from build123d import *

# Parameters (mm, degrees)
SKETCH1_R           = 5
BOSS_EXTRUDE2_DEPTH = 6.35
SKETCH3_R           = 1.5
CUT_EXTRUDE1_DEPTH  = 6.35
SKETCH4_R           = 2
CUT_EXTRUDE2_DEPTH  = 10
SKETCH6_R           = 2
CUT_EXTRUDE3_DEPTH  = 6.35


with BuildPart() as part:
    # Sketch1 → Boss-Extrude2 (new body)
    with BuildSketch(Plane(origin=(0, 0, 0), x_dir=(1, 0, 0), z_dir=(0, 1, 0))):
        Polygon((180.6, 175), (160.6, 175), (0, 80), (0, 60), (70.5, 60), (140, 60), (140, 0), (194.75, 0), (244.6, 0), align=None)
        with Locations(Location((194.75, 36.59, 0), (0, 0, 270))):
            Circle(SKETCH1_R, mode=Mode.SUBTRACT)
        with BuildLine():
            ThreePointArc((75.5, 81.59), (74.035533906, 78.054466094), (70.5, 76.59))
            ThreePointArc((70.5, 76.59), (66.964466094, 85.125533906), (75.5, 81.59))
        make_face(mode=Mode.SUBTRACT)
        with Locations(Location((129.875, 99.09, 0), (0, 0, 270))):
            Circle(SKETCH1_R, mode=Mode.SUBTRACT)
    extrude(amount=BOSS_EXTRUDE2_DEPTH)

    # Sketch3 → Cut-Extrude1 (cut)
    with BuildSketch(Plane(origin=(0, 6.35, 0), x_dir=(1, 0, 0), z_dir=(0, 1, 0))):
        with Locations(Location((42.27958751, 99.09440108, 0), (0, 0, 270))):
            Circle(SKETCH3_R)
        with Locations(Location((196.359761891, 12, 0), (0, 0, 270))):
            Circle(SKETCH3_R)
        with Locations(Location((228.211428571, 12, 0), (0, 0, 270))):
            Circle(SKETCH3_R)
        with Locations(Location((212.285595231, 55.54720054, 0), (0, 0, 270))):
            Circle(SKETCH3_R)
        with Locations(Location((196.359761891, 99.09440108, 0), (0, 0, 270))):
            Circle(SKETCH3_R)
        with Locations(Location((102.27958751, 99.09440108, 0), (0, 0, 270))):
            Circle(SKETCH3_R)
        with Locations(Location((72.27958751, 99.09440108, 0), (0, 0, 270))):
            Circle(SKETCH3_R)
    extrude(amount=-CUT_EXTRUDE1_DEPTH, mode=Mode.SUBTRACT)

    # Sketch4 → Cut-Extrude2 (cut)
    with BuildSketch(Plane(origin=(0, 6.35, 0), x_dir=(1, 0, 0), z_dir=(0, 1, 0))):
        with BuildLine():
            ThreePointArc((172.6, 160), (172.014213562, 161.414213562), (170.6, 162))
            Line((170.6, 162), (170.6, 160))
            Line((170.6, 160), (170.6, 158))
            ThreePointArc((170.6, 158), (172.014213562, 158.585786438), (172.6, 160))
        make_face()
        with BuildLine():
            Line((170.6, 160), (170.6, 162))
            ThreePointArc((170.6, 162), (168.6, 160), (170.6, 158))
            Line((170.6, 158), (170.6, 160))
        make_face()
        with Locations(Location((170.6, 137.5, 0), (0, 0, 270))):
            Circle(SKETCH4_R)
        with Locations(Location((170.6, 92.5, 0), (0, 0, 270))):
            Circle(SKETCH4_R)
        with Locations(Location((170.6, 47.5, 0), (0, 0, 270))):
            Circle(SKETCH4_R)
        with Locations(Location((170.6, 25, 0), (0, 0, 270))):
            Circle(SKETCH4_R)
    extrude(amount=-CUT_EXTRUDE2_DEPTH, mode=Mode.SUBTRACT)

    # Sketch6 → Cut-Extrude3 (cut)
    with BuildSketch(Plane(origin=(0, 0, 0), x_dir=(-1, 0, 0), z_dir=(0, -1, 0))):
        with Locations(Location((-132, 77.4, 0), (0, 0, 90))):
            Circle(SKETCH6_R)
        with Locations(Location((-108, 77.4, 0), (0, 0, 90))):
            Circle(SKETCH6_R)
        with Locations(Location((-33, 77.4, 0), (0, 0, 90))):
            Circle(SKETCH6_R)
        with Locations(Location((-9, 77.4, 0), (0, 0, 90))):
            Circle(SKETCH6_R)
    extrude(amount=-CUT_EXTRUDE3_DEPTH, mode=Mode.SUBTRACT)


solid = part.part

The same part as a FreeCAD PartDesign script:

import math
import FreeCAD as App
import Part
import Sketcher
from FreeCAD import Vector

doc = App.newDocument("Part")
body = doc.addObject("PartDesign::Body", "Body")

sketch1 = body.newObject("Sketcher::SketchObject", "Sketch")
sketch1.AttachmentSupport = (doc.getObject("XZ_Plane"), [""])
sketch1.MapMode = "FlatFace"
sketch1.addGeometry([
    Part.LineSegment(Vector(181, -175, 0), Vector(161, -175, 0)),
    Part.LineSegment(Vector(161, -175, 0), Vector(0, -80, 0)),
    Part.LineSegment(Vector(0, -80, 0), Vector(0, -60, 0)),
    Part.LineSegment(Vector(0, -60, 0), Vector(140, -60, 0)),
    Part.LineSegment(Vector(140, -60, 0), Vector(140, 0, 0)),
    Part.LineSegment(Vector(140, 0, 0), Vector(245, 0, 0)),
    Part.LineSegment(Vector(245, 0, 0), Vector(181, -175, 0)),
    Part.Circle(Vector(195, -37, 0), Vector(0, 0, 1), 5),
    Part.ArcOfCircle(Part.Circle(Vector(70, -82, 0), Vector(0, 0, 1), 5), math.radians(90), math.radians(360)),
    Part.ArcOfCircle(Part.Circle(Vector(70, -82, 0), Vector(0, 0, 1), 5), math.radians(0), math.radians(90)),
    Part.Circle(Vector(130, -99, 0), Vector(0, 0, 1), 5),
], False)
sketch1.addConstraint([
    Sketcher.Constraint("Coincident", 0, 2, 1, 1),
    Sketcher.Constraint("Coincident", 1, 2, 2, 1),
    Sketcher.Constraint("Coincident", 2, 2, 3, 1),
    Sketcher.Constraint("Coincident", 3, 2, 4, 1),
    Sketcher.Constraint("Coincident", 4, 2, 5, 1),
    Sketcher.Constraint("Coincident", 5, 2, 6, 1),
    Sketcher.Constraint("Coincident", 6, 2, 0, 1),
    Sketcher.Constraint("Tangent", 8, 1, 9, 2),
    Sketcher.Constraint("Coincident", 9, 1, 8, 2),
    Sketcher.Constraint("Horizontal", 0),
    Sketcher.Constraint("Vertical", 2),
    Sketcher.Constraint("Horizontal", 3),
    Sketcher.Constraint("Vertical", 4),
    Sketcher.Constraint("Horizontal", 5),
    Sketcher.Constraint("Equal", 7, 8),
    Sketcher.Constraint("Equal", 9, 10),
    Sketcher.Constraint("PointOnObject", 1, 2, -2),
    Sketcher.Constraint("PointOnObject", 4, 2, -1),
    Sketcher.Constraint("Horizontal", 8, 3, 9, 1),
    Sketcher.Constraint("Vertical", 9, 3, 8, 1),
    Sketcher.Constraint("Equal", 0, 2),
    Sketcher.Constraint("Diameter", 7, 10.0),
    Sketcher.Constraint("DistanceX", 0, 2, 0, 1, 20.0),
    Sketcher.Constraint("DistanceX", 3, 1, 3, 2, 140.0),
    Sketcher.Constraint("DistanceY", 4, 1, 4, 2, 60.0),
    Sketcher.Constraint("DistanceX", 5, 1, 5, 2, 104.6),
    Sketcher.Constraint("DistanceY", 0, 2, -1, 1, 175.0),
    Sketcher.Constraint("DistanceY", 8, 3, 7, 3, 45.0),
    Sketcher.Constraint("DistanceX", -1, 1, 8, 3, 70.5),
    Sketcher.Constraint("DistanceX", -1, 1, 0, 2, 160.6),
    Sketcher.Constraint("DistanceY", 10, 3, 8, 3, 17.5),
    Sketcher.Constraint("DistanceX", -1, 1, 7, 3, 194.75),
    Sketcher.Constraint("DistanceY", 7, 3, -1, 1, 36.59),
    Sketcher.Constraint("DistanceX", -1, 1, 10, 3, 129.875),
])
pad1 = body.newObject("PartDesign::Pad", "Pad")
pad1.Profile = sketch1
pad1.Length = 6.35
pad1.Reversed = True

sketch2 = body.newObject("Sketcher::SketchObject", "Sketch001")
sketch2.AttachmentSupport = (doc.getObject("XZ_Plane"), [""])
sketch2.MapMode = "FlatFace"
sketch2.AttachmentOffset = App.Placement(Vector(0, 0, -6.35), App.Rotation())
sketch2.addGeometry([
    Part.Circle(Vector(42.3, -99.1, 0), Vector(0, 0, 1), 1.5),
    Part.Circle(Vector(196.4, -12, 0), Vector(0, 0, 1), 1.5),
    Part.Circle(Vector(228.2, -12, 0), Vector(0, 0, 1), 1.5),
    Part.Circle(Vector(212.3, -55.5, 0), Vector(0, 0, 1), 1.5),
    Part.Circle(Vector(196.4, -99.1, 0), Vector(0, 0, 1), 1.5),
    Part.Circle(Vector(102.3, -99.1, 0), Vector(0, 0, 1), 1.5),
    Part.Circle(Vector(72.3, -99.1, 0), Vector(0, 0, 1), 1.5),
], False)
sketch2.addConstraint([
    Sketcher.Constraint("Equal", 0, 1),
    Sketcher.Constraint("Equal", 1, 2),
    Sketcher.Constraint("Equal", 2, 3),
    Sketcher.Constraint("Equal", 3, 4),
    Sketcher.Constraint("Equal", 4, 5),
    Sketcher.Constraint("Equal", 5, 6),
    Sketcher.Constraint("Horizontal", 1, 3, 2, 3),
    Sketcher.Constraint("Horizontal", 0, 3, 4, 3),
    Sketcher.Constraint("Horizontal", 4, 3, 5, 3),
    Sketcher.Constraint("Horizontal", 5, 3, 6, 3),
    Sketcher.Constraint("Vertical", 1, 3, 4, 3),
    Sketcher.Constraint("Diameter", 0, 3.0),
    Sketcher.Constraint("DistanceY", 1, 3, -1, 1, 12.0),
    Sketcher.Constraint("DistanceX", 0, 3, 5, 3, 60.0),
    Sketcher.Constraint("DistanceX", 0, 3, 6, 3, 30.0),
    Sketcher.Constraint("DistanceY", 0, 3, -1, 1, 99.094401),
    Sketcher.Constraint("DistanceY", 3, 3, -1, 1, 55.547201),
    Sketcher.Constraint("DistanceX", -1, 1, 1, 3, 196.359762),
    Sketcher.Constraint("DistanceX", -1, 1, 2, 3, 228.211429),
    Sketcher.Constraint("DistanceX", 0, 3, 2, 3, 185.931841),
    Sketcher.Constraint("DistanceX", -1, 1, 3, 3, 212.285595),
])
pocket1 = body.newObject("PartDesign::Pocket", "Pocket")
pocket1.Profile = sketch2
pocket1.Length = 6.35
pocket1.Reversed = True

sketch3 = body.newObject("Sketcher::SketchObject", "Sketch002")
sketch3.AttachmentSupport = (doc.getObject("XZ_Plane"), [""])
sketch3.MapMode = "FlatFace"
sketch3.AttachmentOffset = App.Placement(Vector(0, 0, -6.35), App.Rotation())
sketch3.addGeometry([
    Part.ArcOfCircle(Part.Circle(Vector(170.6, -160, 0), Vector(0, 0, 1), 2), math.radians(-90), math.radians(0)),
    Part.ArcOfCircle(Part.Circle(Vector(170.6, -160, 0), Vector(0, 0, 1), 2), math.radians(90), math.radians(270)),
    Part.ArcOfCircle(Part.Circle(Vector(170.6, -160, 0), Vector(0, 0, 1), 2), math.radians(0), math.radians(90)),
    Part.Circle(Vector(170.6, -137.5, 0), Vector(0, 0, 1), 2),
    Part.Circle(Vector(170.6, -92.5, 0), Vector(0, 0, 1), 2),
    Part.Circle(Vector(170.6, -47.5, 0), Vector(0, 0, 1), 2),
    Part.Circle(Vector(170.6, -25, 0), Vector(0, 0, 1), 2),
], False)
sketch3.addConstraint([
    Sketcher.Constraint("Tangent", 0, 1, 1, 2),
    Sketcher.Constraint("Tangent", 1, 1, 2, 2),
    Sketcher.Constraint("Tangent", 2, 1, 0, 2),
    Sketcher.Constraint("Equal", 2, 3),
    Sketcher.Constraint("Equal", 3, 4),
    Sketcher.Constraint("Equal", 4, 5),
    Sketcher.Constraint("Equal", 5, 6),
    Sketcher.Constraint("Horizontal", 1, 3, 2, 1),
    Sketcher.Constraint("Vertical", 2, 3, 3, 3),
    Sketcher.Constraint("Vertical", 3, 3, 4, 3),
    Sketcher.Constraint("Vertical", 4, 3, 5, 3),
    Sketcher.Constraint("Vertical", 5, 3, 6, 3),
    Sketcher.Constraint("Vertical", 6, 3, 0, 1),
    Sketcher.Constraint("Vertical", 0, 1, 1, 1),
    Sketcher.Constraint("Diameter", 3, 4.0),
    Sketcher.Constraint("DistanceY", 0, 3, -1, 1, 160.0),
    Sketcher.Constraint("DistanceY", 6, 3, -1, 1, 25.0),
    Sketcher.Constraint("DistanceY", 3, 3, 4, 3, 45.0),
    Sketcher.Constraint("DistanceY", 4, 3, 5, 3, 45.0),
    Sketcher.Constraint("DistanceX", -1, 1, 0, 3, 170.6),
    Sketcher.Constraint("DistanceY", 3, 3, -1, 1, 137.5),
])
pocket2 = body.newObject("PartDesign::Pocket", "Pocket001")
pocket2.Profile = sketch3
pocket2.Length = 10
pocket2.Reversed = True

sketch4 = body.newObject("Sketcher::SketchObject", "Sketch003")
sketch4.AttachmentSupport = (doc.getObject("XZ_Plane"), [""])
sketch4.MapMode = "FlatFace"
sketch4.addGeometry([
    Part.Circle(Vector(132, -77.4, 0), Vector(0, 0, 1), 2),
    Part.Circle(Vector(108, -77.4, 0), Vector(0, 0, 1), 2),
    Part.Circle(Vector(33, -77.4, 0), Vector(0, 0, 1), 2),
    Part.Circle(Vector(9, -77.4, 0), Vector(0, 0, 1), 2),
], False)
sketch4.addConstraint([
    Sketcher.Constraint("Equal", 0, 1),
    Sketcher.Constraint("Equal", 1, 2),
    Sketcher.Constraint("Equal", 2, 3),
    Sketcher.Constraint("Horizontal", 0, 3, 1, 3),
    Sketcher.Constraint("Horizontal", 1, 3, 2, 3),
    Sketcher.Constraint("Horizontal", 2, 3, 3, 3),
    Sketcher.Constraint("Diameter", 0, 4.0),
    Sketcher.Constraint("DistanceX", -1, 1, 0, 3, 132.0),
    Sketcher.Constraint("DistanceX", -1, 1, 1, 3, 108.0),
    Sketcher.Constraint("DistanceX", -1, 1, 2, 3, 33.0),
    Sketcher.Constraint("DistanceX", -1, 1, 3, 3, 9.0),
    Sketcher.Constraint("DistanceY", 0, 3, -1, 1, 77.4),
])
pocket3 = body.newObject("PartDesign::Pocket", "Pocket002")
pocket3.Profile = sketch4
pocket3.Length = 6.35

doc.recompute()
